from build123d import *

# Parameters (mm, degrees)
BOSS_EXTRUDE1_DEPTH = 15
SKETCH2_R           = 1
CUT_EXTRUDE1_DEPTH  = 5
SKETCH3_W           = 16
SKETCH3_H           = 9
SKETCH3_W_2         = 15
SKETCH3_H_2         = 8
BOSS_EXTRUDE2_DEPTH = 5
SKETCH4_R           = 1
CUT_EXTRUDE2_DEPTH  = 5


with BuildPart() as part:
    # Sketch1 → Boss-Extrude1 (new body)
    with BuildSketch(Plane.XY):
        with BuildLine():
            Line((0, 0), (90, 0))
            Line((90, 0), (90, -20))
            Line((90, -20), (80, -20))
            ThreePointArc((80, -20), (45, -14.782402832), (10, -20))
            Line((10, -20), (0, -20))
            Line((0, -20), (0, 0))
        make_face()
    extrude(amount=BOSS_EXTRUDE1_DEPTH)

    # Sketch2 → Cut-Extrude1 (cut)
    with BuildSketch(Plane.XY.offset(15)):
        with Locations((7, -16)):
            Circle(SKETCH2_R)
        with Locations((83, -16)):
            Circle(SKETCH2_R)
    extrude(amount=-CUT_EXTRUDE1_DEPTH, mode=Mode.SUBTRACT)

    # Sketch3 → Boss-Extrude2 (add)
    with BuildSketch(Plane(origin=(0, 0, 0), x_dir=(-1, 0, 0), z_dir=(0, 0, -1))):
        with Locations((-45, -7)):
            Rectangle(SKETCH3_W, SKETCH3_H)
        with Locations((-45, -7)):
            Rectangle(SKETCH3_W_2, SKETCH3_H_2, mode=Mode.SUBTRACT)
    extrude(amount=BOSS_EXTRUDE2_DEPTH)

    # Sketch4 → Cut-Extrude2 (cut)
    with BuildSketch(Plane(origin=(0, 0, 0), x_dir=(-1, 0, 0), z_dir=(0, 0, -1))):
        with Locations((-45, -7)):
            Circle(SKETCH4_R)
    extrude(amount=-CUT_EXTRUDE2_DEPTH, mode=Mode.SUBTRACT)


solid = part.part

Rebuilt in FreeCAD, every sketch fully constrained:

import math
import FreeCAD as App
import Part
import Sketcher

V = App.Vector
Q = App.Units.Quantity

doc = App.newDocument("Part")
body = doc.addObject("PartDesign::Body", "Body")

# Sketch on XY plane
sketch1 = doc.addObject("Sketcher::SketchObject", "Sketch")
body.addObject(sketch1)
sketch1.AttachmentSupport = (doc.XY_Plane, [""])
sketch1.MapMode = "FlatFace"
sketch1.addGeometry(Part.LineSegment(V(90, 0, 0), V(0, 0, 0)), False)
sketch1.addGeometry(Part.LineSegment(V(0, 0, 0), V(0, -20, 0)), False)
sketch1.addGeometry(Part.LineSegment(V(0, -20, 0), V(10, -20, 0)), False)
sketch1.addGeometry(Part.ArcOfCircle(Part.Circle(V(45, -135, 0), V(0, 0, 1), 120), math.radians(73), math.radians(107)), False)
sketch1.addGeometry(Part.LineSegment(V(80, -20, 0), V(90, -20, 0)), False)
sketch1.addGeometry(Part.LineSegment(V(90, -20, 0), V(90, 0, 0)), False)
sketch1.addConstraint(Sketcher.Constraint("Coincident", 0, 2, 1, 1))
sketch1.addConstraint(Sketcher.Constraint("Coincident", 1, 2, 2, 1))
sketch1.addConstraint(Sketcher.Constraint("Coincident", 2, 2, 3, 2))
sketch1.addConstraint(Sketcher.Constraint("Coincident", 3, 1, 4, 1))
sketch1.addConstraint(Sketcher.Constraint("Coincident", 4, 2, 5, 1))
sketch1.addConstraint(Sketcher.Constraint("Coincident", 5, 2, 0, 1))
sketch1.addConstraint(Sketcher.Constraint("Horizontal", 0))
sketch1.addConstraint(Sketcher.Constraint("Vertical", 1))
sketch1.addConstraint(Sketcher.Constraint("Horizontal", 2))
sketch1.addConstraint(Sketcher.Constraint("Horizontal", 4))
sketch1.addConstraint(Sketcher.Constraint("Vertical", 5))
sketch1.addConstraint(Sketcher.Constraint("Coincident", 0, 2, -1, 1))
sketch1.addConstraint(Sketcher.Constraint("Horizontal", 2, 2, 3, 1))
sketch1.addConstraint(Sketcher.Constraint("Equal", 2, 4))
sketch1.addConstraint(Sketcher.Constraint("Radius", 3, Q("120 mm")))
sketch1.addConstraint(Sketcher.Constraint("DistanceX", 0, 2, 0, 1, Q("90 mm")))
sketch1.addConstraint(Sketcher.Constraint("DistanceX", 2, 1, 2, 2, Q("10 mm")))
sketch1.addConstraint(Sketcher.Constraint("DistanceY", 1, 2, 1, 1, Q("20 mm")))
pad1 = doc.addObject("PartDesign::Pad", "Pad")
body.addObject(pad1)
pad1.Profile = sketch1
pad1.Length = 15

# Sketch on XY plane
sketch2 = doc.addObject("Sketcher::SketchObject", "Sketch001")
body.addObject(sketch2)
sketch2.AttachmentSupport = (doc.XY_Plane, [""])
sketch2.MapMode = "FlatFace"
sketch2.AttachmentOffset = App.Placement(V(0, 0, 15), App.Rotation())
sketch2.addGeometry(Part.Circle(V(7, -16, 0), V(0, 0, 1), 1), False)
sketch2.addGeometry(Part.Circle(V(83, -16, 0), V(0, 0, 1), 1), False)
sketch2.addConstraint(Sketcher.Constraint("Equal", 0, 1))
sketch2.addConstraint(Sketcher.Constraint("Horizontal", 0, 3, 1, 3))
sketch2.addConstraint(Sketcher.Constraint("Diameter", 0, Q("2 mm")))
sketch2.addConstraint(Sketcher.Constraint("DistanceX", -1, 1, 0, 3, Q("7 mm")))
sketch2.addConstraint(Sketcher.Constraint("DistanceY", 0, 3, -1, 1, Q("16 mm")))
sketch2.addConstraint(Sketcher.Constraint("DistanceX", -1, 1, 1, 3, Q("83 mm")))
pocket1 = doc.addObject("PartDesign::Pocket", "Pocket")
body.addObject(pocket1)
pocket1.Profile = sketch2
pocket1.Length = 5

# Sketch on XY plane
sketch3 = doc.addObject("Sketcher::SketchObject", "Sketch002")
body.addObject(sketch3)
sketch3.AttachmentSupport = (doc.XY_Plane, [""])
sketch3.MapMode = "FlatFace"
sketch3.addGeometry(Part.LineSegment(V(53, -2, 0), V(53, -12, 0)), False)
sketch3.addGeometry(Part.LineSegment(V(53, -12, 0), V(37, -12, 0)), False)
sketch3.addGeometry(Part.LineSegment(V(37, -12, 0), V(37, -2, 0)), False)
sketch3.addGeometry(Part.LineSegment(V(37, -2, 0), V(53, -2, 0)), False)
sketch3.addGeometry(Part.LineSegment(V(38, -11, 0), V(52, -11, 0)), False)
sketch3.addGeometry(Part.LineSegment(V(52, -11, 0), V(52, -3, 0)), False)
sketch3.addGeometry(Part.LineSegment(V(52, -3, 0), V(38, -3, 0)), False)
sketch3.addGeometry(Part.LineSegment(V(38, -3, 0), V(38, -11, 0)), False)
sketch3.addConstraint(Sketcher.Constraint("Coincident", 0, 2, 1, 1))
sketch3.addConstraint(Sketcher.Constraint("Coincident", 1, 2, 2, 1))
sketch3.addConstraint(Sketcher.Constraint("Coincident", 2, 2, 3, 1))
sketch3.addConstraint(Sketcher.Constraint("Coincident", 3, 2, 0, 1))
sketch3.addConstraint(Sketcher.Constraint("Coincident", 4, 2, 5, 1))
sketch3.addConstraint(Sketcher.Constraint("Coincident", 5, 2, 6, 1))
sketch3.addConstraint(Sketcher.Constraint("Coincident", 6, 2, 7, 1))
sketch3.addConstraint(Sketcher.Constraint("Coincident", 7, 2, 4, 1))
sketch3.addConstraint(Sketcher.Constraint("Vertical", 0))
sketch3.addConstraint(Sketcher.Constraint("Horizontal", 1))
sketch3.addConstraint(Sketcher.Constraint("Vertical", 2))
sketch3.addConstraint(Sketcher.Constraint("Horizontal", 3))
sketch3.addConstraint(Sketcher.Constraint("Horizontal", 4))
sketch3.addConstraint(Sketcher.Constraint("Vertical", 5))
sketch3.addConstraint(Sketcher.Constraint("Horizontal", 6))
sketch3.addConstraint(Sketcher.Constraint("Vertical", 7))
sketch3.addConstraint(Sketcher.Constraint("DistanceX", 1, 2, 1, 1, Q("16 mm")))
sketch3.addConstraint(Sketcher.Constraint("DistanceX", 4, 1, 4, 2, Q("15 mm")))
sketch3.addConstraint(Sketcher.Constraint("DistanceY", 0, 2, 0, 1, Q("9 mm")))
sketch3.addConstraint(Sketcher.Constraint("DistanceY", 5, 1, 5, 2, Q("8 mm")))
sketch3.addConstraint(Sketcher.Constraint("DistanceX", -1, 1, 0, 2, Q("53 mm")))
sketch3.addConstraint(Sketcher.Constraint("DistanceY", 4, 2, -1, 1, Q("11 mm")))
sketch3.addConstraint(Sketcher.Constraint("DistanceY", 0, 2, -1, 1, Q("11.5 mm")))
sketch3.addConstraint(Sketcher.Constraint("DistanceX", -1, 1, 4, 2, Q("52.5 mm")))
pad2 = doc.addObject("PartDesign::Pad", "Pad001")
body.addObject(pad2)
pad2.Profile = sketch3
pad2.Length = 5
pad2.Reversed = True

# Sketch on XY plane
sketch4 = doc.addObject("Sketcher::SketchObject", "Sketch003")
body.addObject(sketch4)
sketch4.AttachmentSupport = (doc.XY_Plane, [""])
sketch4.MapMode = "FlatFace"
sketch4.addGeometry(Part.Circle(V(45, -7, 0), V(0, 0, 1), 1), False)
sketch4.addConstraint(Sketcher.Constraint("Diameter", 0, Q("2 mm")))
sketch4.addConstraint(Sketcher.Constraint("DistanceX", -1, 1, 0, 3, Q("45 mm")))
sketch4.addConstraint(Sketcher.Constraint("DistanceY", 0, 3, -1, 1, Q("7 mm")))
pocket2 = doc.addObject("PartDesign::Pocket", "Pocket001")
body.addObject(pocket2)
pocket2.Profile = sketch4
pocket2.Length = 5
pocket2.Reversed = True

doc.recompute()
